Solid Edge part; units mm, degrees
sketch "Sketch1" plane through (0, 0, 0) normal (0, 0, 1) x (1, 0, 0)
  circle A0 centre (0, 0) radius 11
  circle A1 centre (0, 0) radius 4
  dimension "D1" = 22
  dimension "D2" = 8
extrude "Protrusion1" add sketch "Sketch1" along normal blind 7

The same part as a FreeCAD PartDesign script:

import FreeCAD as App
import Part
import Sketcher
Q = App.Units.Quantity

doc = App.newDocument("Part")
body = doc.addObject("PartDesign::Body", "Body")

sketch1 = body.newObject("Sketcher::SketchObject", "Sketch")
sketch1.AttachmentSupport = (doc.getObject("XY_Plane"), [""])
sketch1.MapMode = "FlatFace"
sketch1.addGeometry(Part.Circle(App.Vector(0, 0, 0), App.Vector(0, 0, 1), 11), False)
sketch1.addGeometry(Part.Circle(App.Vector(0, 0, 0), App.Vector(0, 0, 1), 4), False)
sketch1.addConstraint(Sketcher.Constraint("Coincident", 0, 3, -1, 1))
sketch1.addConstraint(Sketcher.Constraint("Coincident", 1, 3, -1, 1))
sketch1.addConstraint(Sketcher.Constraint("Diameter", 0, Q("22 mm")))
sketch1.addConstraint(Sketcher.Constraint("Diameter", 1, Q("8 mm")))
pad1 = body.newObject("PartDesign::Pad", "Pad")
pad1.Profile = sketch1
pad1.Length = 7

doc.recompute()
